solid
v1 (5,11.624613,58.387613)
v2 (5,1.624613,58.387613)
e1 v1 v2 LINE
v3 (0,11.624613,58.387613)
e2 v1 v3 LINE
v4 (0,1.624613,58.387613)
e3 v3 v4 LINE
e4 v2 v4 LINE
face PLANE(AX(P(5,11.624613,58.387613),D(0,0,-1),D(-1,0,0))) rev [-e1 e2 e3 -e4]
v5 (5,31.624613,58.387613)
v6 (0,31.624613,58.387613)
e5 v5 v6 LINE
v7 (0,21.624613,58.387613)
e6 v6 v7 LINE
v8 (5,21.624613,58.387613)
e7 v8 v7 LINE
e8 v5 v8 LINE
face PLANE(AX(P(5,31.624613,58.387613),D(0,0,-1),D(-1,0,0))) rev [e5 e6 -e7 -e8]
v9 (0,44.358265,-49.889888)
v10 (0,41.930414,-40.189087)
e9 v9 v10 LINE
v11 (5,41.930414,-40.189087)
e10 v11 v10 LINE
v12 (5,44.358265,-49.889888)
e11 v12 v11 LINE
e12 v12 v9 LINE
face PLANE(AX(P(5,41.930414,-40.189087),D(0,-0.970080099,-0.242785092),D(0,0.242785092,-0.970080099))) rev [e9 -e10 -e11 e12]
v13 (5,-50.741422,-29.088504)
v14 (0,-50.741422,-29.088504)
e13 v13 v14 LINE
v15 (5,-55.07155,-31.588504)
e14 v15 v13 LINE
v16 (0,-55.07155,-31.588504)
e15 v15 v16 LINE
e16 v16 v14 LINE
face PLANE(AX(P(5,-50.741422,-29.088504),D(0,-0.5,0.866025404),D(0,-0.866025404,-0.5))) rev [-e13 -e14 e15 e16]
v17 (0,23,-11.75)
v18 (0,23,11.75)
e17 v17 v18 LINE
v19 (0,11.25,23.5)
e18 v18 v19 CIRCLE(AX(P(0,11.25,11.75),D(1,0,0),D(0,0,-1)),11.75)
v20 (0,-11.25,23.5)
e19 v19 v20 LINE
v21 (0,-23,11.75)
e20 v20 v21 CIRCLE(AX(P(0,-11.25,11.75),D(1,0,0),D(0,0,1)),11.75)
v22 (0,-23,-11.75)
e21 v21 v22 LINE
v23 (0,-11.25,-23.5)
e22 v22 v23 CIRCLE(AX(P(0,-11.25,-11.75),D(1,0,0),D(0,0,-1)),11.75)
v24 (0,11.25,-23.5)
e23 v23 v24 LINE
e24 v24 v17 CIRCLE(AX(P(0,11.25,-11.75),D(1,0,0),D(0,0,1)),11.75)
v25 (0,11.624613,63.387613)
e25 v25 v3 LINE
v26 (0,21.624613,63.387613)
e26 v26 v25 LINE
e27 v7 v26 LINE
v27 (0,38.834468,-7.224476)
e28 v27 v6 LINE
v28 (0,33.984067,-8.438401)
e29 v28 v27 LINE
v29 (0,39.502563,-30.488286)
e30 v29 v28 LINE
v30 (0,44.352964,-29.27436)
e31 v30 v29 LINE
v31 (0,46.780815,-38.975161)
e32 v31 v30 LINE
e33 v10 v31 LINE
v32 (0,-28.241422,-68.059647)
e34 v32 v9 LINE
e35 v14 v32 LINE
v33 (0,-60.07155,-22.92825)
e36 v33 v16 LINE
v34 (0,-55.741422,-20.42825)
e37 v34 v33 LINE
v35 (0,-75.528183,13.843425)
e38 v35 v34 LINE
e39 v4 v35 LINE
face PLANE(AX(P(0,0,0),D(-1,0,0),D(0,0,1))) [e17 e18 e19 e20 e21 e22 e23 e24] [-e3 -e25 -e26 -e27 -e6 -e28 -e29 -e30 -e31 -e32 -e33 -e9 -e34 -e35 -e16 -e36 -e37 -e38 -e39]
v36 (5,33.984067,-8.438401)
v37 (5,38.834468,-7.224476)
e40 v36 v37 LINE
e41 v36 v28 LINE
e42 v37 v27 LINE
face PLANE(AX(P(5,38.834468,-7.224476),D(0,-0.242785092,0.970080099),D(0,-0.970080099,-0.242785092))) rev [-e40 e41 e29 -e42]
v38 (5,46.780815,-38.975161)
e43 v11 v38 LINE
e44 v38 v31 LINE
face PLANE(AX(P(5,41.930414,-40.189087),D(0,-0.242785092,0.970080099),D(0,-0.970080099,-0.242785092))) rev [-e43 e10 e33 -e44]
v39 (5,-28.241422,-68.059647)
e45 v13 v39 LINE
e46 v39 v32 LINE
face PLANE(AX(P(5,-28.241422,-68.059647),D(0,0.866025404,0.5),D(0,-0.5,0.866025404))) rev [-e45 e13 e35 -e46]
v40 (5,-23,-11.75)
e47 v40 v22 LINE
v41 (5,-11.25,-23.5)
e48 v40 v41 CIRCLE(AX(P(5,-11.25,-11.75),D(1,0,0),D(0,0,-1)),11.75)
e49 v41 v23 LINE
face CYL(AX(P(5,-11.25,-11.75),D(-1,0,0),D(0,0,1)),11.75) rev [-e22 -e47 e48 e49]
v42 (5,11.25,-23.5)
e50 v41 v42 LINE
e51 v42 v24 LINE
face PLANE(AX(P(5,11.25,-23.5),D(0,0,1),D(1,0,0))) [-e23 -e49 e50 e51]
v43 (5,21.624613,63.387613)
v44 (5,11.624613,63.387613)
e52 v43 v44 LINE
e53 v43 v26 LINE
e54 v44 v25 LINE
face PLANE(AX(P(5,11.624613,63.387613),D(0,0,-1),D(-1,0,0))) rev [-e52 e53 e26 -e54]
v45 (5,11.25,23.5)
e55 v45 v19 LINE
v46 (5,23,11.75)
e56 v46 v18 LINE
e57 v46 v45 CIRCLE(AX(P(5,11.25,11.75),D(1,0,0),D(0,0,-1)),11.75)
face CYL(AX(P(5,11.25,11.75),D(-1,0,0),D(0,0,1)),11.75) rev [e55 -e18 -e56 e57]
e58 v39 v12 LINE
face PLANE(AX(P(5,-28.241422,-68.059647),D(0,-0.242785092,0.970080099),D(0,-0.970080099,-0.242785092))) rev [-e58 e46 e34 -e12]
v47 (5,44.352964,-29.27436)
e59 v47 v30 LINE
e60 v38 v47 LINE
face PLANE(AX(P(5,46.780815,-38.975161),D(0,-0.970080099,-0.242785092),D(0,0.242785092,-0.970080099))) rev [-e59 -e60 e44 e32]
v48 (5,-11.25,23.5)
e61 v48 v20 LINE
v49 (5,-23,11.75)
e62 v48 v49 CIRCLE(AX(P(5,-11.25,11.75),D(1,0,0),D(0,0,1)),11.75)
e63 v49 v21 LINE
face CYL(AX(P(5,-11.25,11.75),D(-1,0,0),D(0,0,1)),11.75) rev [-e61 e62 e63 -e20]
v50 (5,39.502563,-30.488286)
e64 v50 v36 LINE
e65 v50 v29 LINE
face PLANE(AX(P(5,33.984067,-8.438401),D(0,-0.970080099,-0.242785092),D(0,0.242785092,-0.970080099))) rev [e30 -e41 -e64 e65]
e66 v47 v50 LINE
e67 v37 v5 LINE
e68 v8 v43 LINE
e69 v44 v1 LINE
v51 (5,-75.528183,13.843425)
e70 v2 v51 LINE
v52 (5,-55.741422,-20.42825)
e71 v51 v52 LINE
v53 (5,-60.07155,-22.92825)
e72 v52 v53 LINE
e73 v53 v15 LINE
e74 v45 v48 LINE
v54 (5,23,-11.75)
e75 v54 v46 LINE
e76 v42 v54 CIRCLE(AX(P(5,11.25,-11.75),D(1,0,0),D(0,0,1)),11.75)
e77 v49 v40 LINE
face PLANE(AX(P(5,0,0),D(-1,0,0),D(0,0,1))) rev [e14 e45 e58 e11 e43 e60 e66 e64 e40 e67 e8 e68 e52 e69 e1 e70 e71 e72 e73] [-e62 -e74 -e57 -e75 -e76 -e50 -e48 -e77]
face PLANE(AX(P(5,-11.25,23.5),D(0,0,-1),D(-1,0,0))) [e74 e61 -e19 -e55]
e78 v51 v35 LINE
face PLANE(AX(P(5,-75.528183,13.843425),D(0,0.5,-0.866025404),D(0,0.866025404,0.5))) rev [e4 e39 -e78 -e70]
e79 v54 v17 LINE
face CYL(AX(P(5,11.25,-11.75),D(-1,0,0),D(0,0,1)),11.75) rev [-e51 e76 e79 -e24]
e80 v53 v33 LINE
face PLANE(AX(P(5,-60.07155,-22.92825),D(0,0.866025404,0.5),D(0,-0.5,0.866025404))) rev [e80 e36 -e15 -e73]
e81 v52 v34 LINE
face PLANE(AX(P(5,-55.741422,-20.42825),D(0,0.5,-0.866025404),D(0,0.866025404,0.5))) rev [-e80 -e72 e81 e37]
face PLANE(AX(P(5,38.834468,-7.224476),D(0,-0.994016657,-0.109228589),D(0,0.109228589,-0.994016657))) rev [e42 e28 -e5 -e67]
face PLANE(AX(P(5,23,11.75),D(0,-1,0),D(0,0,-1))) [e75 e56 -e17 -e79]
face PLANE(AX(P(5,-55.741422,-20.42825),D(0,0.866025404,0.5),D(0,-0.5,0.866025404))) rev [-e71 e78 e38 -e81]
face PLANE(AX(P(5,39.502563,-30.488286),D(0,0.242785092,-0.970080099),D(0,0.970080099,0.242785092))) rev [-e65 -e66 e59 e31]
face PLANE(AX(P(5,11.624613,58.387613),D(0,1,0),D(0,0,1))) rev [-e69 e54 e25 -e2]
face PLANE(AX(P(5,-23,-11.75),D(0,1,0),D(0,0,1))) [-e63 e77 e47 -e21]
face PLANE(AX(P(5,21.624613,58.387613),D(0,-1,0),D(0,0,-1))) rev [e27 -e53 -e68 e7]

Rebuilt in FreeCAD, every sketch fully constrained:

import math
import FreeCAD as App
import Part
import Sketcher

V = App.Vector
Q = App.Units.Quantity

doc = App.newDocument("Part")
params = doc.addObject("Spreadsheet::Sheet", "Params")
for row, (alias, value) in enumerate([
    ("sketch1_width", "10 mm"),
    ("sketch1_height", "5 mm"),
    ("sketch1_radius", "11.75 mm"),
    ("sketch1_length", "5 mm"),
    ("sketch1_length2", "10 mm"),
    ("pad1_length", "5 mm"),
], start=1):
    params.set(f"A{row}", alias)
    params.set(f"B{row}", "=" + value)
    params.setAlias(f"B{row}", alias)

body = doc.addObject("PartDesign::Body", "Body")

sketch1 = doc.addObject("Sketcher::SketchObject", "Sketch")
body.addObject(sketch1)
sketch1.AttachmentSupport = (doc.YZ_Plane, [""])
sketch1.MapMode = "FlatFace"
sketch1.addGeometry([
    Part.LineSegment(V(-75.5, 13.8, 0), V(-55.7, -20.4, 0)),
    Part.LineSegment(V(-55.7, -20.4, 0), V(-60.1, -22.9, 0)),
    Part.LineSegment(V(-60.1, -22.9, 0), V(-55.1, -31.6, 0)),
    Part.LineSegment(V(-55.1, -31.6, 0), V(-50.7, -29.1, 0)),
    Part.LineSegment(V(-50.7, -29.1, 0), V(-28.2, -68.1, 0)),
    Part.LineSegment(V(-28.2, -68.1, 0), V(44.4, -49.9, 0)),
    Part.LineSegment(V(44.4, -49.9, 0), V(41.9, -40.2, 0)),
    Part.LineSegment(V(41.9, -40.2, 0), V(46.8, -39, 0)),
    Part.LineSegment(V(46.8, -39, 0), V(44.4, -29.3, 0)),
    Part.LineSegment(V(44.4, -29.3, 0), V(39.5, -30.5, 0)),
    Part.LineSegment(V(39.5, -30.5, 0), V(34, -8.4, 0)),
    Part.LineSegment(V(34, -8.4, 0), V(38.8, -7.2, 0)),
    Part.LineSegment(V(38.8, -7.2, 0), V(31.6, 58.4, 0)),
    Part.LineSegment(V(31.6, 58.4, 0), V(21.6, 58.4, 0)),
    Part.LineSegment(V(21.6, 58.4, 0), V(21.6, 63.4, 0)),
    Part.LineSegment(V(21.6, 63.4, 0), V(11.6, 63.4, 0)),
    Part.LineSegment(V(11.6, 63.4, 0), V(11.6, 58.4, 0)),
    Part.LineSegment(V(11.6, 58.4, 0), V(1.6, 58.4, 0)),
    Part.LineSegment(V(1.6, 58.4, 0), V(-75.5, 13.8, 0)),
    Part.LineSegment(V(23, 11.8, 0), V(23, -11.8, 0)),
    Part.ArcOfCircle(Part.Circle(V(11.2, -11.8, 0), V(0, 0, 1), 11.8), math.radians(-90), math.radians(0)),
    Part.LineSegment(V(11.2, -23.5, 0), V(-11.2, -23.5, 0)),
    Part.ArcOfCircle(Part.Circle(V(-11.2, -11.8, 0), V(0, 0, 1), 11.8), math.radians(180), math.radians(270)),
    Part.LineSegment(V(-23, -11.8, 0), V(-23, 11.8, 0)),
    Part.ArcOfCircle(Part.Circle(V(-11.2, 11.8, 0), V(0, 0, 1), 11.8), math.radians(90), math.radians(180)),
    Part.LineSegment(V(-11.2, 23.5, 0), V(11.2, 23.5, 0)),
    Part.ArcOfCircle(Part.Circle(V(11.2, 11.8, 0), V(0, 0, 1), 11.8), math.radians(0), math.radians(90)),
], False)
sketch1.addConstraint([
    Sketcher.Constraint("Coincident", 0, 2, 1, 1),
    Sketcher.Constraint("Coincident", 1, 2, 2, 1),
    Sketcher.Constraint("Coincident", 2, 2, 3, 1),
    Sketcher.Constraint("Coincident", 3, 2, 4, 1),
    Sketcher.Constraint("Coincident", 4, 2, 5, 1),
    Sketcher.Constraint("Coincident", 5, 2, 6, 1),
    Sketcher.Constraint("Coincident", 6, 2, 7, 1),
    Sketcher.Constraint("Coincident", 7, 2, 8, 1),
    Sketcher.Constraint("Coincident", 8, 2, 9, 1),
    Sketcher.Constraint("Coincident", 9, 2, 10, 1),
    Sketcher.Constraint("Coincident", 10, 2, 11, 1),
    Sketcher.Constraint("Coincident", 11, 2, 12, 1),
    Sketcher.Constraint("Coincident", 12, 2, 13, 1),
    Sketcher.Constraint("Coincident", 13, 2, 14, 1),
    Sketcher.Constraint("Coincident", 14, 2, 15, 1),
    Sketcher.Constraint("Coincident", 15, 2, 16, 1),
    Sketcher.Constraint("Coincident", 16, 2, 17, 1),
    Sketcher.Constraint("Coincident", 17, 2, 18, 1),
    Sketcher.Constraint("Coincident", 18, 2, 0, 1),
    Sketcher.Constraint("Tangent", 19, 2, 20, 2),
    Sketcher.Constraint("Tangent", 20, 1, 21, 1),
    Sketcher.Constraint("Tangent", 21, 2, 22, 2),
    Sketcher.Constraint("Tangent", 22, 1, 23, 1),
    Sketcher.Constraint("Tangent", 23, 2, 24, 2),
    Sketcher.Constraint("Tangent", 24, 1, 25, 1),
    Sketcher.Constraint("Tangent", 25, 2, 26, 2),
    Sketcher.Constraint("Tangent", 26, 1, 19, 1),
    Sketcher.Constraint("Horizontal", 13),
    Sketcher.Constraint("Vertical", 14),
    Sketcher.Constraint("Horizontal", 15),
    Sketcher.Constraint("Vertical", 16),
    Sketcher.Constraint("Horizontal", 17),
    Sketcher.Constraint("Vertical", 19),
    Sketcher.Constraint("Horizontal", 21),
    Sketcher.Constraint("Vertical", 23),
    Sketcher.Constraint("Horizontal", 25),
    Sketcher.Constraint("Equal", 20, 22),
    Sketcher.Constraint("Equal", 22, 24),
    Sketcher.Constraint("Equal", 24, 26),
    Sketcher.Constraint("Symmetric", 20, 3, 24, 3, -1, 1),
    Sketcher.Constraint("Perpendicular", 0, 1),
    Sketcher.Constraint("Perpendicular", 1, 2),
    Sketcher.Constraint("Perpendicular", 2, 3),
    Sketcher.Constraint("Perpendicular", 3, 4),
    Sketcher.Constraint("Perpendicular", 5, 6),
    Sketcher.Constraint("Perpendicular", 6, 7),
    Sketcher.Constraint("Perpendicular", 7, 8),
    Sketcher.Constraint("Perpendicular", 8, 9),
    Sketcher.Constraint("Perpendicular", 9, 10),
    Sketcher.Constraint("Perpendicular", 10, 11),
    Sketcher.Constraint("Perpendicular", 4, 18),
    Sketcher.Constraint("Horizontal", 13, 2, 16, 2),
    Sketcher.Constraint("Equal", 13, 15),
    Sketcher.Constraint("Equal", 15, 17),
    Sketcher.Constraint("Equal", 1, 3),
    Sketcher.Constraint("Equal", 2, 6),
    Sketcher.Constraint("Equal", 3, 7),
    Sketcher.Constraint("Equal", 6, 8),
    Sketcher.Constraint("Equal", 7, 9),
    Sketcher.Constraint("Equal", 9, 11),
    Sketcher.Constraint("DistanceX", 13, 2, 13, 1, 10.0),
    Sketcher.Constraint("DistanceY", 14, 1, 14, 2, 5.0),
    Sketcher.Constraint("Angle", 0, Q("-60 deg")),
    Sketcher.Constraint("Radius", 20, 11.75),
    Sketcher.Constraint("Distance", 1, 5.0),
    Sketcher.Constraint("Distance", 2, 10.0),
    Sketcher.Constraint("Distance", 4, 45.0),
    Sketcher.Constraint("DistanceX", 21, 2, 21, 1, 22.5),
    Sketcher.Constraint("DistanceY", 19, 2, 19, 1, 23.5),
    Sketcher.Constraint("DistanceY", 10, 2, -1, 1, 8.438401),
    Sketcher.Constraint("DistanceY", 5, 2, 6, 2, 9.700801),
    Sketcher.Constraint("Distance", 0, 39.573521),
    Sketcher.Constraint("Distance", 5, 74.838859),
    Sketcher.Constraint("Distance", 12, 66.007031),
    Sketcher.Constraint("DistanceY", 0, 2, -1, 1, 20.42825),
    Sketcher.Constraint("DistanceX", 1, 2, -1, 1, 60.07155),
])
sketch1.setExpression("Constraints[60]", "Params.sketch1_width")
sketch1.setExpression("Constraints[61]", "Params.sketch1_height")
sketch1.setExpression("Constraints[63]", "Params.sketch1_radius")
sketch1.setExpression("Constraints[64]", "Params.sketch1_length")
sketch1.setExpression("Constraints[65]", "Params.sketch1_length2")
pad1 = doc.addObject("PartDesign::Pad", "Pad")
body.addObject(pad1)
pad1.Profile = sketch1
pad1.setExpression("Length", "Params.pad1_length")

doc.recompute()
